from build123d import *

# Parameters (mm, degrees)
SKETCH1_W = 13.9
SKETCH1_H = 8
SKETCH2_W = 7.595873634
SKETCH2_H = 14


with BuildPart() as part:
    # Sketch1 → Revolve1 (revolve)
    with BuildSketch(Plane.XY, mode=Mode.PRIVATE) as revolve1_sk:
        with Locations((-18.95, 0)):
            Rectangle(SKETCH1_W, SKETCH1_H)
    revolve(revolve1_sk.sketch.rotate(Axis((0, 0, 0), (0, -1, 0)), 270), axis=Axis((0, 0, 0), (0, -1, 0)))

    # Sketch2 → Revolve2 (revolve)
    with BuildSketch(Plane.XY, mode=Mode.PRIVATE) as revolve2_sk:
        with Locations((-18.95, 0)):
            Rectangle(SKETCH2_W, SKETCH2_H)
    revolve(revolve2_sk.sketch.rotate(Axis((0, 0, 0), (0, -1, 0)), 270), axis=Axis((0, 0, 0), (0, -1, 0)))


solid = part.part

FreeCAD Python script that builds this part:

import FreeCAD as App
import Part
import Sketcher

V = App.Vector


def add_polygon(sketch, points):
    """Adds a closed chain of lines whose ends are joined by coincident constraints."""
    first, n = sketch.GeometryCount, len(points)
    for a, b in zip(points, points[1:] + points[:1]):
        sketch.addGeometry(Part.LineSegment(App.Vector(*a, 0), App.Vector(*b, 0)), False)
    for i in range(n):
        sketch.addConstraint(Sketcher.Constraint("Coincident", first + i, 2, first + (i + 1) % n, 1))

doc = App.newDocument("Part")
body = doc.addObject("PartDesign::Body", "Body")

# Sketch on XY plane
sketch1 = body.newObject("Sketcher::SketchObject", "Sketch")
sketch1.AttachmentSupport = (doc.getObject("XY_Plane"), [""])
sketch1.MapMode = "FlatFace"
add_polygon(sketch1, [(-26, 4), (-26, -4), (-12, -4), (-12, 4)])  # lines 0-3
sketch1.addConstraint([
    Sketcher.Constraint("Vertical", 0),
    Sketcher.Constraint("Horizontal", 1),
    Sketcher.Constraint("Vertical", 2),
    Sketcher.Constraint("Horizontal", 3),
    Sketcher.Constraint("DistanceY", 0, 2, 0, 1, 8.0),
    Sketcher.Constraint("DistanceX", 1, 1, 1, 2, 13.9),
    Sketcher.Constraint("DistanceY", 0, 2, -1, 1, 4.0),
    Sketcher.Constraint("DistanceX", 1, 2, -1, 1, 12.0),
])
revolution = body.newObject("PartDesign::Revolution", "Revolution")
revolution.Profile = sketch1
revolution.ReferenceAxis = (sketch1, ["V_Axis"])
revolution.Angle = 360

# Sketch on XY plane
sketch2 = body.newObject("Sketcher::SketchObject", "Sketch001")
sketch2.AttachmentSupport = (doc.getObject("XY_Plane"), [""])
sketch2.MapMode = "FlatFace"
add_polygon(sketch2, [(-23, 7), (-23, -7), (-15, -7), (-15, 7)])  # lines 0-3
sketch2.addConstraint([
    Sketcher.Constraint("Vertical", 0),
    Sketcher.Constraint("Horizontal", 1),
    Sketcher.Constraint("Vertical", 2),
    Sketcher.Constraint("Horizontal", 3),
    Sketcher.Constraint("DistanceY", 0, 2, 0, 1, 14.0),
    Sketcher.Constraint("DistanceY", 0, 2, -1, 1, 7.0),
    Sketcher.Constraint("DistanceX", 1, 1, 1, 2, 7.595874),
    Sketcher.Constraint("DistanceX", 0, 2, -1, 1, 22.747937),
])
revolution2 = body.newObject("PartDesign::Revolution", "Revolution001")
revolution2.Profile = sketch2
revolution2.ReferenceAxis = (sketch2, ["V_Axis"])
revolution2.Angle = 360

doc.recompute()
